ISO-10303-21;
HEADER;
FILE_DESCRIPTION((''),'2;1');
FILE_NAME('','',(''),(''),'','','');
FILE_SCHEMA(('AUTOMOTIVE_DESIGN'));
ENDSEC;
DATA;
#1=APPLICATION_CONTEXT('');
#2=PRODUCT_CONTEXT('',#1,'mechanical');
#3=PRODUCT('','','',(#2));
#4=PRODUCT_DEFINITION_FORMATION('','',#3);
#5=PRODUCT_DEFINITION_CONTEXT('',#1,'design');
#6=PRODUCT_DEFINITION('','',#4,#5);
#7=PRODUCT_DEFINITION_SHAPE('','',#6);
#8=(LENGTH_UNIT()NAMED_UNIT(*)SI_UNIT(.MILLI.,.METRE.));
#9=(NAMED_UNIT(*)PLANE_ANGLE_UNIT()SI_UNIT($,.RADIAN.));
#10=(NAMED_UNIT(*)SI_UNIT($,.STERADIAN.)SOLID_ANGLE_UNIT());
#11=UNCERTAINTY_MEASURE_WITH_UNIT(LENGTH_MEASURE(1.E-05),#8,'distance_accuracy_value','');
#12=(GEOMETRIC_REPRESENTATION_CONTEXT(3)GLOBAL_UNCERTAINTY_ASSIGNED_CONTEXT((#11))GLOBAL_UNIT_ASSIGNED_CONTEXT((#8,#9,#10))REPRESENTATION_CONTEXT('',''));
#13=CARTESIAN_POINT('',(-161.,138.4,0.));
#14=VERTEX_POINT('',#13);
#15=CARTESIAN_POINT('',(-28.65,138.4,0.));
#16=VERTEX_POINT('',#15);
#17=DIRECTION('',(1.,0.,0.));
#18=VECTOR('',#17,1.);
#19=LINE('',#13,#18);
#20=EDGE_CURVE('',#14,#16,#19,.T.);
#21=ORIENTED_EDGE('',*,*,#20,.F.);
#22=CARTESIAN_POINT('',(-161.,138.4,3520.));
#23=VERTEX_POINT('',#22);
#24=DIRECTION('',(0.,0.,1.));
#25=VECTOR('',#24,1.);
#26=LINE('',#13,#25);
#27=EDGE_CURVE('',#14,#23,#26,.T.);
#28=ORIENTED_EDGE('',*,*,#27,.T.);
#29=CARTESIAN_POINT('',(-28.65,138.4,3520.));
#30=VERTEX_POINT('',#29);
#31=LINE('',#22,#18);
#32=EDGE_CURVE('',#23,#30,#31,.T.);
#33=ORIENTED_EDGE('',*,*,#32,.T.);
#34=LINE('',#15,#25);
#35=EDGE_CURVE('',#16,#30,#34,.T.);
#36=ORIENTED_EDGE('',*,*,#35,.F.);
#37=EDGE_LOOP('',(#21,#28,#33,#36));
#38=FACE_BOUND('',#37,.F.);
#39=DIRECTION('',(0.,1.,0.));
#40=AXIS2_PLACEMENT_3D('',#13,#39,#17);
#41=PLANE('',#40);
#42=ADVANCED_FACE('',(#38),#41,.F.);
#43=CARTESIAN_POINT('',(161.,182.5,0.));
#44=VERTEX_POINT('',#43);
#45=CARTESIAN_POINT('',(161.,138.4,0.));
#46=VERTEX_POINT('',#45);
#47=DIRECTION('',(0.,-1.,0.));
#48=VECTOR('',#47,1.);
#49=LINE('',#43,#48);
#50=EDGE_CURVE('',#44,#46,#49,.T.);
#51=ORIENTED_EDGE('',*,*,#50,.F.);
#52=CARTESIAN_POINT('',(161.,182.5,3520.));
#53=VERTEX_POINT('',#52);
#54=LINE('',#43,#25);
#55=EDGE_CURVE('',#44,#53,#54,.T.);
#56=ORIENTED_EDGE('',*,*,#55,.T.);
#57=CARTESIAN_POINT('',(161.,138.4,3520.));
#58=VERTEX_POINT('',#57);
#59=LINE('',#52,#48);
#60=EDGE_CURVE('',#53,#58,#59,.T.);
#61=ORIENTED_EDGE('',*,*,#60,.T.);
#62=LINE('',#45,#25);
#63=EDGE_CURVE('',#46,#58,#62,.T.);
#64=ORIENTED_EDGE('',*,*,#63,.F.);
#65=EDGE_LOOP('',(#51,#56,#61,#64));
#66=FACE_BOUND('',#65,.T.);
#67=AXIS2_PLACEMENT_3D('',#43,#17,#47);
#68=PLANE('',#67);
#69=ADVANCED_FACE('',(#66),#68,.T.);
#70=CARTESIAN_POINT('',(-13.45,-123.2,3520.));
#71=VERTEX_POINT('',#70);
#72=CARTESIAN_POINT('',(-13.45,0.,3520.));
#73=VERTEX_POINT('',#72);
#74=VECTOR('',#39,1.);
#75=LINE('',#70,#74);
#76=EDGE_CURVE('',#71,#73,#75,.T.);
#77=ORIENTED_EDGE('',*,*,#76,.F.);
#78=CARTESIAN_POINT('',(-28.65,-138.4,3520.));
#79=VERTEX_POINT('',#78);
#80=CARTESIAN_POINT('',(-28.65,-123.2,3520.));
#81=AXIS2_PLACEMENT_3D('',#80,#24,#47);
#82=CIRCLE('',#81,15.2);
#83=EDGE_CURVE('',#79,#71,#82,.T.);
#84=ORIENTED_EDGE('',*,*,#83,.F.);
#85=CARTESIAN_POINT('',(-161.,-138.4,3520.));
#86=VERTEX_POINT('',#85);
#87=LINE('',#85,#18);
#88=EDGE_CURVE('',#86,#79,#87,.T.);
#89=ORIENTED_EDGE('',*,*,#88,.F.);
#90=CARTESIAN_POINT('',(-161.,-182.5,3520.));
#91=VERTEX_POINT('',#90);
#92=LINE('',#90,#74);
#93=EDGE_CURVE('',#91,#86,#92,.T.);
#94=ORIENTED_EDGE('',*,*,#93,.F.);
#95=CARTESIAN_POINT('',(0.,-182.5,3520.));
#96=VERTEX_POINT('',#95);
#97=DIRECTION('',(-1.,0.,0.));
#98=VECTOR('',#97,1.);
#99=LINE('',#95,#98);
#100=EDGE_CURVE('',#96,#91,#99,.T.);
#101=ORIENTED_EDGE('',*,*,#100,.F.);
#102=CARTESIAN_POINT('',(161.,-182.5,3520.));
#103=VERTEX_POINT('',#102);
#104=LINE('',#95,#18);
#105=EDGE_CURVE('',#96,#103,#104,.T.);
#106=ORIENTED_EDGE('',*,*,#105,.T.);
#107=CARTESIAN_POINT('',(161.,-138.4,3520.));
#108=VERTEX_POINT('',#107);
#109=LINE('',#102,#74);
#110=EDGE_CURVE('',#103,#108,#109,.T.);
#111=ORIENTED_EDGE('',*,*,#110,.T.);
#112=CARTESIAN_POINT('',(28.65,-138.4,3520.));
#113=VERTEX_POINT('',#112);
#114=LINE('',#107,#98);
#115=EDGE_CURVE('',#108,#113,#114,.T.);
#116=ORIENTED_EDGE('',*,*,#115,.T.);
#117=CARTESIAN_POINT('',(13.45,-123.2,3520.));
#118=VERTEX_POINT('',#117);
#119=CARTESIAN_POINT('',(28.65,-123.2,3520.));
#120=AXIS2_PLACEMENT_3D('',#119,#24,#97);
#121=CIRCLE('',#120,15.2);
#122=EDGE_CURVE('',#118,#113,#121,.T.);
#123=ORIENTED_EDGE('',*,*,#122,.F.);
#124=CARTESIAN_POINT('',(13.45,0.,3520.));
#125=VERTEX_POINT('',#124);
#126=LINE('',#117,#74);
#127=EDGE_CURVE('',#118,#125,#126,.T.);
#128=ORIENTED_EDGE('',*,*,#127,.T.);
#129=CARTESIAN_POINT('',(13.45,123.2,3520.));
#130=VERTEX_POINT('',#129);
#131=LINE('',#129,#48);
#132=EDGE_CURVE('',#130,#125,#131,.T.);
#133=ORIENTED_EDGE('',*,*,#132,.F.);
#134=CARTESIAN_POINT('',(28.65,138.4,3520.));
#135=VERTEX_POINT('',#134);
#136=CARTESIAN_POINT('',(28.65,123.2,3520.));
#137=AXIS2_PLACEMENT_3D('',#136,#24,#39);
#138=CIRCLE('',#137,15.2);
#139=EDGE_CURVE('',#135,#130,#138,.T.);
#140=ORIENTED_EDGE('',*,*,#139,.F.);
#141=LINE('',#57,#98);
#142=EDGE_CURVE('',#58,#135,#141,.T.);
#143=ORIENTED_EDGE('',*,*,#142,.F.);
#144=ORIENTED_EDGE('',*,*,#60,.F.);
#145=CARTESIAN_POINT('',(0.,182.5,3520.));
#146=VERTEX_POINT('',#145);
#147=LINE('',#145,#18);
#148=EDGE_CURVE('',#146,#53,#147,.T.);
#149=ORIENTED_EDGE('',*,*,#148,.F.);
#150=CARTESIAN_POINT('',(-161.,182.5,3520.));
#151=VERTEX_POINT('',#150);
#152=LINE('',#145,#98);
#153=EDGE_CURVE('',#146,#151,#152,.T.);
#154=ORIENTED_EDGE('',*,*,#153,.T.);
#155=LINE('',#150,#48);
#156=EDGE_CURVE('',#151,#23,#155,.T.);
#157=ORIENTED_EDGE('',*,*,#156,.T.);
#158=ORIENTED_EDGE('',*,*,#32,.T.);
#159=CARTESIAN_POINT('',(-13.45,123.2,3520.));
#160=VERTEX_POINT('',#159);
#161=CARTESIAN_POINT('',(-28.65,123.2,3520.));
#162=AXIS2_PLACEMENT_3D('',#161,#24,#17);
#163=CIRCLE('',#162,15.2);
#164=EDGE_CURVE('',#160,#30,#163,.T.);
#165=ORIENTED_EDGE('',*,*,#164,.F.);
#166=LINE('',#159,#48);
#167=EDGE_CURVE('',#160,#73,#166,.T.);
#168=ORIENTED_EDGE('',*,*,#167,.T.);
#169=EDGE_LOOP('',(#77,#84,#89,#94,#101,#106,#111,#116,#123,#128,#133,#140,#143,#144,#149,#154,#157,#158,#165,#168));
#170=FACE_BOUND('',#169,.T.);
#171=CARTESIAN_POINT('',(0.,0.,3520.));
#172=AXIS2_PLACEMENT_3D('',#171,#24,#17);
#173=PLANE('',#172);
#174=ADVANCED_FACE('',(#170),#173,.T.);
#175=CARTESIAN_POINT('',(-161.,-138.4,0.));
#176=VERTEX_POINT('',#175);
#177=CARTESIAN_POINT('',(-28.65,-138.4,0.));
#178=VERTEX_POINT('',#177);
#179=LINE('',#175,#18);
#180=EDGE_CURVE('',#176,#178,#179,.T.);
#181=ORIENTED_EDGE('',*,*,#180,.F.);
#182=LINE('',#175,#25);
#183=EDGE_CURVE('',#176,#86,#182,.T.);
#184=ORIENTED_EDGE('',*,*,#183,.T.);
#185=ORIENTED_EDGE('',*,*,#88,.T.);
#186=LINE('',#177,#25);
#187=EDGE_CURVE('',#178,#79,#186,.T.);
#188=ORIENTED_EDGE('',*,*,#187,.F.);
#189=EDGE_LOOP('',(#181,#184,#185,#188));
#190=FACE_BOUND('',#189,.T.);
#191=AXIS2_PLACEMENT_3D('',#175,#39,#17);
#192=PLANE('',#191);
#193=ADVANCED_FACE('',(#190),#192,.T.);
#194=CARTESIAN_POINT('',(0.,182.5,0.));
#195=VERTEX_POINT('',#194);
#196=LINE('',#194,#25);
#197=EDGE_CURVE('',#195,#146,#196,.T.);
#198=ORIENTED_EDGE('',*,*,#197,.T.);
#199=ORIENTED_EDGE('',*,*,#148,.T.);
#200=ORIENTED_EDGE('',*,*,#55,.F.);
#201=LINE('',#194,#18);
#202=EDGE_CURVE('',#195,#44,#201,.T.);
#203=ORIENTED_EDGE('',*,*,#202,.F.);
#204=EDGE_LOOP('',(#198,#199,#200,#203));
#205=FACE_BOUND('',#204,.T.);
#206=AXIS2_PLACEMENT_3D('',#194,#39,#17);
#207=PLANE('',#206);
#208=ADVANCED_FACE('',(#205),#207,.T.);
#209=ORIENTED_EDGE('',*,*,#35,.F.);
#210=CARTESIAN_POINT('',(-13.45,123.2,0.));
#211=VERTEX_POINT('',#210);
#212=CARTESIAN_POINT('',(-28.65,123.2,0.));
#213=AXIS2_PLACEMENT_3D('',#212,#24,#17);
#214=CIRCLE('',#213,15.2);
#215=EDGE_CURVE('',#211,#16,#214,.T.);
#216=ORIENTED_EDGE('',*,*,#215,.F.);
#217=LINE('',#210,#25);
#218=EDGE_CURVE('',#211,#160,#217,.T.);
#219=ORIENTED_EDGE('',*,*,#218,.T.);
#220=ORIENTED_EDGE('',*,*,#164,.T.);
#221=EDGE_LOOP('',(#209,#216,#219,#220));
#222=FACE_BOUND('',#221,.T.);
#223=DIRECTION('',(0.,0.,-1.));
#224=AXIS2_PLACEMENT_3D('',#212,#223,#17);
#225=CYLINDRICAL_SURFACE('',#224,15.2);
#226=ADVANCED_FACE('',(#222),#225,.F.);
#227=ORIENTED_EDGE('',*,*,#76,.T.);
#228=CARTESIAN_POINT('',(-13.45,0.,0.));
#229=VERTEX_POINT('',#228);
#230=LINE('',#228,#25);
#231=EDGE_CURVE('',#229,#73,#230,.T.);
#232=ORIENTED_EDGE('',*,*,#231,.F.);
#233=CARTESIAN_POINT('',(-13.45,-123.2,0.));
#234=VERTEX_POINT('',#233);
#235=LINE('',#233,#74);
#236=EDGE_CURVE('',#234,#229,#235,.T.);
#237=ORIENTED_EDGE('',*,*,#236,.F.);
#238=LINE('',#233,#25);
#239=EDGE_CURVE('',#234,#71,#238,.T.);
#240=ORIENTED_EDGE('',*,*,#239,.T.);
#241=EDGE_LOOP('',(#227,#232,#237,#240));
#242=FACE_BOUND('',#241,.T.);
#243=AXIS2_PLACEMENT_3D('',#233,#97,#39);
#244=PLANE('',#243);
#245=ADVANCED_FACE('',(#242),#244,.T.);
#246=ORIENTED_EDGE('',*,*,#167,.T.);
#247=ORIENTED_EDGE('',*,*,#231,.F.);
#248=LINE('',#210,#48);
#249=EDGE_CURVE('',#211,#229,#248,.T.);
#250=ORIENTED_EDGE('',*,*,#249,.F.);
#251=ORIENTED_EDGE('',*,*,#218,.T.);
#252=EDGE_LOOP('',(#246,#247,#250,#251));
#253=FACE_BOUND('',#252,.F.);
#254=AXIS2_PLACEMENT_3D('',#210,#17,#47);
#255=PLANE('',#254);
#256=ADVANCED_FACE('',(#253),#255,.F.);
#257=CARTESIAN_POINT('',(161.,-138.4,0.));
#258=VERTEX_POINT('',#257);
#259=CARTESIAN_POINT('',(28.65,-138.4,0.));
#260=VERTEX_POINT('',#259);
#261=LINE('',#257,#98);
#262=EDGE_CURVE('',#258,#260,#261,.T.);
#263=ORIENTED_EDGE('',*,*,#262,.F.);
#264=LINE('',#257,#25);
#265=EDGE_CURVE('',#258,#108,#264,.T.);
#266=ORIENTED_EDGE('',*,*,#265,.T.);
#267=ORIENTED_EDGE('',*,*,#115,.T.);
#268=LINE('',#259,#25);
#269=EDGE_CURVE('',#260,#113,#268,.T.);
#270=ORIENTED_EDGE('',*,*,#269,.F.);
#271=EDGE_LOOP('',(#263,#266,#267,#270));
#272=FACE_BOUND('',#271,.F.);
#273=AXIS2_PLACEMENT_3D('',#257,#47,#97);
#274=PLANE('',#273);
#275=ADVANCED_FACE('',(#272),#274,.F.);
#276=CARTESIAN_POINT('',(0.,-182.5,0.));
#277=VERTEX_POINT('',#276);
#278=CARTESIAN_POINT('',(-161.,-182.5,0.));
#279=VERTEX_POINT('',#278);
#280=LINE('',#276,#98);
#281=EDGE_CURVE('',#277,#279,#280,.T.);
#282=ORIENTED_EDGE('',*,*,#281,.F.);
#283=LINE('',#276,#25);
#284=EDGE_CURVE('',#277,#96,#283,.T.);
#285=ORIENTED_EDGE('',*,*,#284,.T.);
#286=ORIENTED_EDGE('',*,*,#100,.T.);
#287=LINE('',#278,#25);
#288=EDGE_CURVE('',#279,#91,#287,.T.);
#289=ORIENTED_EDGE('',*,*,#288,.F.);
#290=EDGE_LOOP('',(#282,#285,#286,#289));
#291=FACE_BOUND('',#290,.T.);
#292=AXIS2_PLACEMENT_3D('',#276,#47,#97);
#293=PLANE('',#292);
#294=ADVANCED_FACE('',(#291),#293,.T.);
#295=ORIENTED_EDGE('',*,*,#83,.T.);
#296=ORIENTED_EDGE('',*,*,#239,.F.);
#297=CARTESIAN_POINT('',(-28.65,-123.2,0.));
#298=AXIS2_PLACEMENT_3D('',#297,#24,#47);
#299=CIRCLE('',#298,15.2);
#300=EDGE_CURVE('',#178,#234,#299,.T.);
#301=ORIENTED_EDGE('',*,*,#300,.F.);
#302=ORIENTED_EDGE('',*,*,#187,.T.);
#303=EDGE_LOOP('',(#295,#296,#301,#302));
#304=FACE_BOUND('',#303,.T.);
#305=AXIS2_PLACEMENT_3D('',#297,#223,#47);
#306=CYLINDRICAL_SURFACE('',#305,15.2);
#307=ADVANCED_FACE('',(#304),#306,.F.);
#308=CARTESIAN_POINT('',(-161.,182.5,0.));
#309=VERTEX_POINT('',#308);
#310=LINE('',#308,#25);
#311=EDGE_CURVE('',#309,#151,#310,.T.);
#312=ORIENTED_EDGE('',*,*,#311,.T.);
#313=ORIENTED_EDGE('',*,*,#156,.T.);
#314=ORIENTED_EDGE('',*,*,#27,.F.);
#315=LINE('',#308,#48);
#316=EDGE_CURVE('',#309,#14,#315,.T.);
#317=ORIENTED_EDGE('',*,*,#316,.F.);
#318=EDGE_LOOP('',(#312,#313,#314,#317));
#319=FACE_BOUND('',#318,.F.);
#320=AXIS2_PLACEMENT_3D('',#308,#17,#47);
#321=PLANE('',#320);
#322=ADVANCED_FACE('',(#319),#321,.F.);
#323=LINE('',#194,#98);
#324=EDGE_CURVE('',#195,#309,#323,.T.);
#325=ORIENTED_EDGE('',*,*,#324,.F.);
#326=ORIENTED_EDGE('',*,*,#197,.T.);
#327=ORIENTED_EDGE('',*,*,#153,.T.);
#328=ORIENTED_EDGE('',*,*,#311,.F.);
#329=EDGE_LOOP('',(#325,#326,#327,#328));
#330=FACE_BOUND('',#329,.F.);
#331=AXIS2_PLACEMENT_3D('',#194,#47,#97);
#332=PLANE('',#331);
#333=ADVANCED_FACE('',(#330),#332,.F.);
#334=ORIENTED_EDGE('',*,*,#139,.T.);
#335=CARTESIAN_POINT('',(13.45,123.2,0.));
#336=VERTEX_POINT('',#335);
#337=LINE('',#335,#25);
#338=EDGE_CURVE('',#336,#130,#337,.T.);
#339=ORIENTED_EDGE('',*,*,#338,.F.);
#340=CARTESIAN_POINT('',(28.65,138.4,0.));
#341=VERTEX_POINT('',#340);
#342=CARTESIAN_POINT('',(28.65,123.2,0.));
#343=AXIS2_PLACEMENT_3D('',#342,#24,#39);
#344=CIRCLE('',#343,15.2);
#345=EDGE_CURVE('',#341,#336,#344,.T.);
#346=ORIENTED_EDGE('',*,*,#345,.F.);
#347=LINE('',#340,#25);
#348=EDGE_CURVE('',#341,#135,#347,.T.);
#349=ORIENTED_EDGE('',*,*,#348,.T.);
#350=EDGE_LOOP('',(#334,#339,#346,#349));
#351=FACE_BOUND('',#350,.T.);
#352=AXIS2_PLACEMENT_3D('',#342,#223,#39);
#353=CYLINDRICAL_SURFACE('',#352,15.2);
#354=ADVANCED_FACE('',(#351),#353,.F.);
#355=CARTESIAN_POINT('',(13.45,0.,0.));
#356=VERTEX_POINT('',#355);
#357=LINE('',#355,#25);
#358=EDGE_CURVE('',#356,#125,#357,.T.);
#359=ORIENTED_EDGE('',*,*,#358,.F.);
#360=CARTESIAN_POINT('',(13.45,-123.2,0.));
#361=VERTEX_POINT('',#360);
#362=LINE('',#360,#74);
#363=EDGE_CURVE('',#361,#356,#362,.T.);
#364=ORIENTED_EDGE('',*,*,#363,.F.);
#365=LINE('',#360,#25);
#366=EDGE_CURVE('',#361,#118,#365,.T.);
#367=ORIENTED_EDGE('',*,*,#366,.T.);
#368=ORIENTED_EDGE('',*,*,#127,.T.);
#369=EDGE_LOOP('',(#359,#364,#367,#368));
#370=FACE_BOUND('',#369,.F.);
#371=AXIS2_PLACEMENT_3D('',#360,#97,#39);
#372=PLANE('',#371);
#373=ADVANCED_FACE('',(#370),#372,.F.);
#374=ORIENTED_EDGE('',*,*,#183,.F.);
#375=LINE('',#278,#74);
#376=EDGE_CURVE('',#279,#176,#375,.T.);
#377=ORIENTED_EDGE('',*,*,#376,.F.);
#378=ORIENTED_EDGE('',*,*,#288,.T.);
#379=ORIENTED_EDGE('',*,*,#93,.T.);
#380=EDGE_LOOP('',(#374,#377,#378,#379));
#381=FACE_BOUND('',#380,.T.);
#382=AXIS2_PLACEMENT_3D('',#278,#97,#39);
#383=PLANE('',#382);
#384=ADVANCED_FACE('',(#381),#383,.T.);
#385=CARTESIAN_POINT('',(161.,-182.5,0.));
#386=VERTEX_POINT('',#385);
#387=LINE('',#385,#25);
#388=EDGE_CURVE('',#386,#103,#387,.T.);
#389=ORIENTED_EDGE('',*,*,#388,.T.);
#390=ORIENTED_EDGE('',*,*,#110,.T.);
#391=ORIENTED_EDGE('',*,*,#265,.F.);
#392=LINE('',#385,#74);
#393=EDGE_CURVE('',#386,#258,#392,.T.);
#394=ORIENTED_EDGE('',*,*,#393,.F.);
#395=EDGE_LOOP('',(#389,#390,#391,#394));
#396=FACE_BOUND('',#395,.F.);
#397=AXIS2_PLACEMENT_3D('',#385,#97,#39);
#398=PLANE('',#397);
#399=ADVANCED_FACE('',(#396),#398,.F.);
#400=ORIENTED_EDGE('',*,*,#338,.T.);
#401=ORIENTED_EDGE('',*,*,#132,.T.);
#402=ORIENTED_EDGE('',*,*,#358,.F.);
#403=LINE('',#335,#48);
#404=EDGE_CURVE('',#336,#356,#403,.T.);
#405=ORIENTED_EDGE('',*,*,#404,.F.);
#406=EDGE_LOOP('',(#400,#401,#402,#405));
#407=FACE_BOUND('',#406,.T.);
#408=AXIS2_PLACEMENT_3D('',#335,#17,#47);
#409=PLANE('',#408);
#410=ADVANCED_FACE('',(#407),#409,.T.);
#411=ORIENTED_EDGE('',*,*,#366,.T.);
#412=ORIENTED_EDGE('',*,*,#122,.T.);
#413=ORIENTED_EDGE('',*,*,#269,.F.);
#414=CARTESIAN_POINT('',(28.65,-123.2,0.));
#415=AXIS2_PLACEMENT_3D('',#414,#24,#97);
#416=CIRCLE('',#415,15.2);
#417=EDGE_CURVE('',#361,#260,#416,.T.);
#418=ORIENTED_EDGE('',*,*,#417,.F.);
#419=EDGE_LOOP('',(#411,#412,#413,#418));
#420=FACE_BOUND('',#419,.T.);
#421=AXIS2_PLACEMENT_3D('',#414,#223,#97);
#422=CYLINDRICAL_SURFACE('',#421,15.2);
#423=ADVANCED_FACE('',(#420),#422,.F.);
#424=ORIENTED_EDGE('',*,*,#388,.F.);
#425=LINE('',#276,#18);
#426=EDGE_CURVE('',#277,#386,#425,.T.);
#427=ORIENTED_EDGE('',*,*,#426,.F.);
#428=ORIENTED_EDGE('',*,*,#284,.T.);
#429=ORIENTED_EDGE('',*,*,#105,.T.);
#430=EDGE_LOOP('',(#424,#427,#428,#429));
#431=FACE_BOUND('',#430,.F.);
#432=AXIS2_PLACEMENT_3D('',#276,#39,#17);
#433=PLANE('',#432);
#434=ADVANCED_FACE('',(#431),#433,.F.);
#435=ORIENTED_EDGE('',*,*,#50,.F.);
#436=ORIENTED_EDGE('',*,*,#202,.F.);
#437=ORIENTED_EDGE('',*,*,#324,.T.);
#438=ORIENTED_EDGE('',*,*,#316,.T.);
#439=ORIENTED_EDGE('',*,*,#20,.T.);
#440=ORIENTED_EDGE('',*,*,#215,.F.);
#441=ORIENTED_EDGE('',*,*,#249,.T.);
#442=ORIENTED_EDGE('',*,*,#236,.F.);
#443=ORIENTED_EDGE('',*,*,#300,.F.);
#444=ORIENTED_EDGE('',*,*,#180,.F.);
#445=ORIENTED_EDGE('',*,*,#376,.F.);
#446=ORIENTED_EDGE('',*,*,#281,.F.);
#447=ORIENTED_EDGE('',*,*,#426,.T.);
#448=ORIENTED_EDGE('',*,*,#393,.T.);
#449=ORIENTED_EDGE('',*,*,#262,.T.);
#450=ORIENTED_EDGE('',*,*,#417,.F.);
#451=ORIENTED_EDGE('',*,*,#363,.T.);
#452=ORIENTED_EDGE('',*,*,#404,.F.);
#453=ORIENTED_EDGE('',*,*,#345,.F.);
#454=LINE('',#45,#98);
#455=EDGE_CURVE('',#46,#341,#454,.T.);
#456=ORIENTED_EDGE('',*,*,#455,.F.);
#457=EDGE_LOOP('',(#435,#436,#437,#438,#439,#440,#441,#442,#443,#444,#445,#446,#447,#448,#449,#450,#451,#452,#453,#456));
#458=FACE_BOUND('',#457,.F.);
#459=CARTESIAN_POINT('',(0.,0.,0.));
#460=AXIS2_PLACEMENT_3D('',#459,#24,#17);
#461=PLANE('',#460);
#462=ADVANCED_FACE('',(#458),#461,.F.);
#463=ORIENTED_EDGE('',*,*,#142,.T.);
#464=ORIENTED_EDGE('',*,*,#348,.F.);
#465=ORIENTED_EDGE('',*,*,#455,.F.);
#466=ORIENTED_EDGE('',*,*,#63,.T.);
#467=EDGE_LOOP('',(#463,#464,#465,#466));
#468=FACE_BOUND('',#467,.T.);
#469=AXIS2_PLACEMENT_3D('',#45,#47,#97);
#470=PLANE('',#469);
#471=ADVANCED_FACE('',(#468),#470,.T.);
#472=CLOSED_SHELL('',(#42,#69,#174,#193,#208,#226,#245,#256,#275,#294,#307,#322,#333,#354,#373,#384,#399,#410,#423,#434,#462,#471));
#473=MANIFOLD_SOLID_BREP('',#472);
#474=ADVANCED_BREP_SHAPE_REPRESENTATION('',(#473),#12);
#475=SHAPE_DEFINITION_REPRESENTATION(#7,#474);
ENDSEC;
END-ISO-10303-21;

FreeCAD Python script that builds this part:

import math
import FreeCAD as App
import Part
import Sketcher

V = App.Vector

doc = App.newDocument("Part")
body = doc.addObject("PartDesign::Body", "Body")

# Sketch on XY plane
sketch1 = body.newObject("Sketcher::SketchObject", "Sketch")
sketch1.AttachmentSupport = (doc.getObject("XY_Plane"), [""])
sketch1.MapMode = "FlatFace"
sketch1.addGeometry([
    Part.LineSegment(V(-161, -138, 0), V(-161, -182, 0)),  # 0
    Part.LineSegment(V(-161, -182, 0), V(161, -182, 0)),  # 1
    Part.LineSegment(V(161, -182, 0), V(161, -138, 0)),  # 2
    Part.LineSegment(V(161, -138, 0), V(29, -138, 0)),  # 3
    Part.ArcOfCircle(Part.Circle(V(29, -123, 0), V(0, 0, 1), 15), math.radians(180), math.radians(270)),  # 4
    Part.LineSegment(V(13, -123, 0), V(13, 123, 0)),  # 5
    Part.ArcOfCircle(Part.Circle(V(29, 123, 0), V(0, 0, 1), 15), math.radians(90), math.radians(180)),  # 6
    Part.LineSegment(V(29, 138, 0), V(161, 138, 0)),  # 7
    Part.LineSegment(V(161, 138, 0), V(161, 182, 0)),  # 8
    Part.LineSegment(V(161, 182, 0), V(-161, 182, 0)),  # 9
    Part.LineSegment(V(-161, 182, 0), V(-161, 138, 0)),  # 10
    Part.LineSegment(V(-161, 138, 0), V(-29, 138, 0)),  # 11
    Part.ArcOfCircle(Part.Circle(V(-29, 123, 0), V(0, 0, 1), 15), math.radians(0), math.radians(90)),  # 12
    Part.LineSegment(V(-13, 123, 0), V(-13, -123, 0)),  # 13
    Part.ArcOfCircle(Part.Circle(V(-29, -123, 0), V(0, 0, 1), 15), math.radians(-90), math.radians(0)),  # 14
    Part.LineSegment(V(-29, -138, 0), V(-161, -138, 0)),  # 15
], False)
sketch1.addConstraint([
    Sketcher.Constraint("Coincident", 0, 2, 1, 1),
    Sketcher.Constraint("Coincident", 1, 2, 2, 1),
    Sketcher.Constraint("Coincident", 2, 2, 3, 1),
    Sketcher.Constraint("Tangent", 3, 2, 4, 2),
    Sketcher.Constraint("Tangent", 4, 1, 5, 1),
    Sketcher.Constraint("Tangent", 5, 2, 6, 2),
    Sketcher.Constraint("Tangent", 6, 1, 7, 1),
    Sketcher.Constraint("Coincident", 7, 2, 8, 1),
    Sketcher.Constraint("Coincident", 8, 2, 9, 1),
    Sketcher.Constraint("Coincident", 9, 2, 10, 1),
    Sketcher.Constraint("Coincident", 10, 2, 11, 1),
    Sketcher.Constraint("Tangent", 11, 2, 12, 2),
    Sketcher.Constraint("Tangent", 12, 1, 13, 1),
    Sketcher.Constraint("Tangent", 13, 2, 14, 2),
    Sketcher.Constraint("Tangent", 14, 1, 15, 1),
    Sketcher.Constraint("Coincident", 15, 2, 0, 1),
    Sketcher.Constraint("Vertical", 0),
    Sketcher.Constraint("Horizontal", 1),
    Sketcher.Constraint("Vertical", 2),
    Sketcher.Constraint("Horizontal", 3),
    Sketcher.Constraint("Vertical", 5),
    Sketcher.Constraint("Horizontal", 7),
    Sketcher.Constraint("Vertical", 8),
    Sketcher.Constraint("Horizontal", 9),
    Sketcher.Constraint("Vertical", 10),
    Sketcher.Constraint("Horizontal", 11),
    Sketcher.Constraint("Vertical", 13),
    Sketcher.Constraint("Horizontal", 15),
    Sketcher.Constraint("Equal", 4, 6),
    Sketcher.Constraint("Equal", 6, 12),
    Sketcher.Constraint("Equal", 12, 14),
    Sketcher.Constraint("Symmetric", 4, 3, 12, 3, -1, 1),
    Sketcher.Constraint("Symmetric", 0, 2, 8, 2, -1, 1),
    Sketcher.Constraint("Symmetric", 7, 2, 10, 2, -2),
    Sketcher.Constraint("Symmetric", 2, 2, 15, 2, -2),
    Sketcher.Constraint("Radius", 4, 15.2),
    Sketcher.Constraint("DistanceY", 0, 2, 0, 1, 44.1),
    Sketcher.Constraint("DistanceX", 0, 2, -1, 1, 161.0),
    Sketcher.Constraint("DistanceY", 0, 2, -1, 1, 182.5),
    Sketcher.Constraint("DistanceX", -1, 1, 4, 1, 13.45),
])
pad1 = body.newObject("PartDesign::Pad", "Pad")
pad1.Profile = sketch1
pad1.Length = 3520

doc.recompute()
